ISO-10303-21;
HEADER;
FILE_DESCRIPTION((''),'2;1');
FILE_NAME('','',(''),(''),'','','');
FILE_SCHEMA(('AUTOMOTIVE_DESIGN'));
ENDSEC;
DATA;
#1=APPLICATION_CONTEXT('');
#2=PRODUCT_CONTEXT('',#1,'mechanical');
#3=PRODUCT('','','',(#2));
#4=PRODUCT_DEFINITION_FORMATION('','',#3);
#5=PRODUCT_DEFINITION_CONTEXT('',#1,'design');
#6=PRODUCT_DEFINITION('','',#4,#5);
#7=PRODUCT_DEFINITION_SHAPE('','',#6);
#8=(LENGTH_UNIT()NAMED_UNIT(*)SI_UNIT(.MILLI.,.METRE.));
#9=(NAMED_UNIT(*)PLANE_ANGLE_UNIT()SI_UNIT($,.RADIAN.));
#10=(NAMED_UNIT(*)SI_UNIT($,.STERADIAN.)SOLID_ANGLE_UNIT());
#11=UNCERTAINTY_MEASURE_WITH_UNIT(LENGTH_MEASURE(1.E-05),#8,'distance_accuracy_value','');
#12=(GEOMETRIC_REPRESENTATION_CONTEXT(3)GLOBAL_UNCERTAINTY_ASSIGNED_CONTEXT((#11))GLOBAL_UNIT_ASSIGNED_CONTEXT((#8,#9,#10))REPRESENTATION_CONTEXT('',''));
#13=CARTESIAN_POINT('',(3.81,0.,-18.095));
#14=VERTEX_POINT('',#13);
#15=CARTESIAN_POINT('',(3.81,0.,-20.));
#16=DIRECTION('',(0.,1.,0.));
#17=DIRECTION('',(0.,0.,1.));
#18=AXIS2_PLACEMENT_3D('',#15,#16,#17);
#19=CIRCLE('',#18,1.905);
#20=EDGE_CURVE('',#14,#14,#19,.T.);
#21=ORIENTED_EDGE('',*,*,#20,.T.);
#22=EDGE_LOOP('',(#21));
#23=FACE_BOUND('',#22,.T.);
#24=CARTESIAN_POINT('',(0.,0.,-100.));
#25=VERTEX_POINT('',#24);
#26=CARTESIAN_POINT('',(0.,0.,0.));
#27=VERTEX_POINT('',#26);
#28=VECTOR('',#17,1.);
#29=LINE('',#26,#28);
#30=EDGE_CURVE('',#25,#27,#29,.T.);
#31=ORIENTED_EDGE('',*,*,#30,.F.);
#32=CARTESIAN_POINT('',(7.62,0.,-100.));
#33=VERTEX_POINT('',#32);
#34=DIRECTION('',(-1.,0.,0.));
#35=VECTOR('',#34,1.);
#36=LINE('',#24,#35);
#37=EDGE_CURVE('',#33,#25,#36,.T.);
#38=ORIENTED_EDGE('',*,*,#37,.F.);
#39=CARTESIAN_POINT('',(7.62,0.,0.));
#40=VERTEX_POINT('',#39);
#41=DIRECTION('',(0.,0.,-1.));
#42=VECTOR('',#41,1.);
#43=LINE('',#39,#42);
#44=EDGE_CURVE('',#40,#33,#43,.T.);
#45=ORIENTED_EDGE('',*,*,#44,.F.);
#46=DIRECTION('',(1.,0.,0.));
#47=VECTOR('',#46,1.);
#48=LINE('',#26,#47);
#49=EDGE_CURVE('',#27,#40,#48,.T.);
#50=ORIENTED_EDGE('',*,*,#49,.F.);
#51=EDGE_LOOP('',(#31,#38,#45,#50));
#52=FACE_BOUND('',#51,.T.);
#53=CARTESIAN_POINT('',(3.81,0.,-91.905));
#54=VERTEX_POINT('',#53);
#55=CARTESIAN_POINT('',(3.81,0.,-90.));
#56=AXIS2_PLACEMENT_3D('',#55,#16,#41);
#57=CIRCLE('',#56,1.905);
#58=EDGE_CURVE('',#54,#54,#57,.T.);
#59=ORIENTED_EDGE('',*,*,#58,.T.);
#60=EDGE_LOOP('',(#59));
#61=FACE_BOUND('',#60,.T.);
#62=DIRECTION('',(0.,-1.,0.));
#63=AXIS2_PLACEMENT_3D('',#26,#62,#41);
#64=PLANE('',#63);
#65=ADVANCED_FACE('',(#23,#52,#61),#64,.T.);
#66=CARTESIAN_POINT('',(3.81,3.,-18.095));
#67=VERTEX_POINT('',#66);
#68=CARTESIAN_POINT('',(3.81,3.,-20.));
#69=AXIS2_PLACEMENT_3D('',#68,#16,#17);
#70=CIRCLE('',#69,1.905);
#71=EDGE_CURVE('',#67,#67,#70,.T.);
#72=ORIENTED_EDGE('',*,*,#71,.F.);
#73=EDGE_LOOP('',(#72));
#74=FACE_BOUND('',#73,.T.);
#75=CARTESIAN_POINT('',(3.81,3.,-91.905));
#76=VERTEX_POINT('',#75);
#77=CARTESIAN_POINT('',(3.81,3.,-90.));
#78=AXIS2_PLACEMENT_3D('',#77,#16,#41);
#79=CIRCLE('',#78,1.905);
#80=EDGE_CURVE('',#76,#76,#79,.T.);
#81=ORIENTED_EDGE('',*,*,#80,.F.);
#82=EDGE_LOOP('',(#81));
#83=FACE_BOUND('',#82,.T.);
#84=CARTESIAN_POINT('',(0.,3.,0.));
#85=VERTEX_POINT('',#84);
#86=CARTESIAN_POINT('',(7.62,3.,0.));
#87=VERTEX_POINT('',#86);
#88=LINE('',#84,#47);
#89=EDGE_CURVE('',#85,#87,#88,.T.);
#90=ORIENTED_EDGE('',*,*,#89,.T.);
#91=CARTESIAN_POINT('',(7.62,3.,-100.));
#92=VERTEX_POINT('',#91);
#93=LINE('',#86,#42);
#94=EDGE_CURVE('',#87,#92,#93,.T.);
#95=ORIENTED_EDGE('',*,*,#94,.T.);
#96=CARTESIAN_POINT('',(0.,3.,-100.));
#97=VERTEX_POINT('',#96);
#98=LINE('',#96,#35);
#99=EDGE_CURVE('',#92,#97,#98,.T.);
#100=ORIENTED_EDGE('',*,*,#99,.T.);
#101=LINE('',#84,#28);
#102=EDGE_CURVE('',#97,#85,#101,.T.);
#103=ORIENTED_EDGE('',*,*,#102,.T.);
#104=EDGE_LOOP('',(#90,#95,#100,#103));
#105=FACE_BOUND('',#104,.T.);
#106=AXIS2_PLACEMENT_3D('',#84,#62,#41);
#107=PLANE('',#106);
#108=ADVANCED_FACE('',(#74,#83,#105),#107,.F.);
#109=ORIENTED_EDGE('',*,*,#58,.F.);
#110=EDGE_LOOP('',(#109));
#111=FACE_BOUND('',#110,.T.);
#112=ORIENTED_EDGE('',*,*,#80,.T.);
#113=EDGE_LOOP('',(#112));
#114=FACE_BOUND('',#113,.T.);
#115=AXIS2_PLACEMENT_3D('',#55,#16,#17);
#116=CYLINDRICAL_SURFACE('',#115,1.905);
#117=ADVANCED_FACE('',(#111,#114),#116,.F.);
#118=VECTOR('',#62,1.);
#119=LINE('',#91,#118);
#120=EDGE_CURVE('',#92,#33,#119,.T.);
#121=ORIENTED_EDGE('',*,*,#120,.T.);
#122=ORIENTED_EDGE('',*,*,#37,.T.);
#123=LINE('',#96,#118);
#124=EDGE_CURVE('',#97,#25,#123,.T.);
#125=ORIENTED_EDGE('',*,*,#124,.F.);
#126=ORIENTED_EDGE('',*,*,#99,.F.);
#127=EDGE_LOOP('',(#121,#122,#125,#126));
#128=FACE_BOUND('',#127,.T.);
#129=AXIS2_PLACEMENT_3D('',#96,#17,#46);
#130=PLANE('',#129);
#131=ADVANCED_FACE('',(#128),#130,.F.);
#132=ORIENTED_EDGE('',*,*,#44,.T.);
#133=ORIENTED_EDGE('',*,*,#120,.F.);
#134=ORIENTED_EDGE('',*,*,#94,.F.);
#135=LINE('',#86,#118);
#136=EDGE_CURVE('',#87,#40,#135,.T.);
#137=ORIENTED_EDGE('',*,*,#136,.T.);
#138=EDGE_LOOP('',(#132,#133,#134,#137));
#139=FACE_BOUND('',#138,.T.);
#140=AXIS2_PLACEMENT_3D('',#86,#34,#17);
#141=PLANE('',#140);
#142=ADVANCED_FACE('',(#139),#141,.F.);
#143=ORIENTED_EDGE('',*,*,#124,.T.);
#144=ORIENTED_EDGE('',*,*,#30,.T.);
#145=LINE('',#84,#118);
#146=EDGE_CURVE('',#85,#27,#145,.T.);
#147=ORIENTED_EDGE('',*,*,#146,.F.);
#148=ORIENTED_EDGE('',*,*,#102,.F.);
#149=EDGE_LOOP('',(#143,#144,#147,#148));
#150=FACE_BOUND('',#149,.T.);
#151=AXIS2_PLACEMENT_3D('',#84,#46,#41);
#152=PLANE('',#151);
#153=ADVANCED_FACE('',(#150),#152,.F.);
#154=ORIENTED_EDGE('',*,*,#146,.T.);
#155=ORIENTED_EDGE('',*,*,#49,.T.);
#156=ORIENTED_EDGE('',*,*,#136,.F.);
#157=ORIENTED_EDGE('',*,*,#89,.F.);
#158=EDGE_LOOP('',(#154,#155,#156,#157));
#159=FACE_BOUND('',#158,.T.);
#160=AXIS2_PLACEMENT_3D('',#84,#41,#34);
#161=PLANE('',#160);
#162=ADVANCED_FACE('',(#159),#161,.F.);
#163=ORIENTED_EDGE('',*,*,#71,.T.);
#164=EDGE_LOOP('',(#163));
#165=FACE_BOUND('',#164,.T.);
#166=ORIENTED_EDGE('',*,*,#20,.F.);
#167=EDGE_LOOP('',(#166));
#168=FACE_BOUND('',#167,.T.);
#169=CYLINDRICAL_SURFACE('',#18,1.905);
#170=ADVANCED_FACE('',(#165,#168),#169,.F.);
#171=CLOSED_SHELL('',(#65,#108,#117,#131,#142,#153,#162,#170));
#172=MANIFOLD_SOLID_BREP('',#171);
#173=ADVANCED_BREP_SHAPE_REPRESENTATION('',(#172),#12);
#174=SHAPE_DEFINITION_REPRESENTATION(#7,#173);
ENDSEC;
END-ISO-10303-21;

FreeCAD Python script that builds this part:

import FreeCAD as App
import Part
import Sketcher

doc = App.newDocument("Part")
body = doc.addObject("PartDesign::Body", "Body")

# Sketch on XZ plane
sketch1 = doc.addObject("Sketcher::SketchObject", "Sketch")
body.addObject(sketch1)
sketch1.AttachmentSupport = (doc.XZ_Plane, [""])
sketch1.MapMode = "FlatFace"
sketch1.addGeometry(Part.LineSegment(App.Vector(0, -100, 0), App.Vector(0, 0, 0)), False)
sketch1.addGeometry(Part.LineSegment(App.Vector(0, 0, 0), App.Vector(8, 0, 0)), False)
sketch1.addGeometry(Part.LineSegment(App.Vector(8, 0, 0), App.Vector(8, -100, 0)), False)
sketch1.addGeometry(Part.LineSegment(App.Vector(8, -100, 0), App.Vector(0, -100, 0)), False)
sketch1.addConstraint(Sketcher.Constraint("Coincident", 0, 2, 1, 1))
sketch1.addConstraint(Sketcher.Constraint("Coincident", 1, 2, 2, 1))
sketch1.addConstraint(Sketcher.Constraint("Coincident", 2, 2, 3, 1))
sketch1.addConstraint(Sketcher.Constraint("Coincident", 3, 2, 0, 1))
sketch1.addConstraint(Sketcher.Constraint("Vertical", 0))
sketch1.addConstraint(Sketcher.Constraint("Horizontal", 1))
sketch1.addConstraint(Sketcher.Constraint("Vertical", 2))
sketch1.addConstraint(Sketcher.Constraint("Horizontal", 3))
sketch1.addConstraint(Sketcher.Constraint("Coincident", 0, 2, -1, 1))
sketch1.addConstraint(Sketcher.Constraint("DistanceY", 0, 1, 0, 2, 100.0))
sketch1.addConstraint(Sketcher.Constraint("DistanceX", 1, 1, 1, 2, 7.62))
pad1 = doc.addObject("PartDesign::Pad", "Pad")
body.addObject(pad1)
pad1.Profile = sketch1
pad1.Length = 3
pad1.Reversed = True

# Sketch on XZ plane
sketch2 = doc.addObject("Sketcher::SketchObject", "Sketch001")
body.addObject(sketch2)
sketch2.AttachmentSupport = (doc.XZ_Plane, [""])
sketch2.MapMode = "FlatFace"
sketch2.AttachmentOffset = App.Placement(App.Vector(0, 0, -3), App.Rotation())
sketch2.addGeometry(Part.Circle(App.Vector(3.8, -90, 0), App.Vector(0, 0, 1), 1.9), False)
sketch2.addGeometry(Part.Circle(App.Vector(3.8, -20, 0), App.Vector(0, 0, 1), 1.9), False)
sketch2.addConstraint(Sketcher.Constraint("Equal", 0, 1))
sketch2.addConstraint(Sketcher.Constraint("Vertical", 0, 3, 1, 3))
sketch2.addConstraint(Sketcher.Constraint("Diameter", 0, 3.81))
sketch2.addConstraint(Sketcher.Constraint("DistanceY", 0, 3, -1, 1, 90.0))
sketch2.addConstraint(Sketcher.Constraint("DistanceY", 1, 3, -1, 1, 20.0))
sketch2.addConstraint(Sketcher.Constraint("DistanceX", -1, 1, 0, 3, 3.81))
pocket1 = doc.addObject("PartDesign::Pocket", "Pocket")
body.addObject(pocket1)
pocket1.Profile = sketch2
pocket1.Type = "ThroughAll"
pocket1.Reversed = True

doc.recompute()
